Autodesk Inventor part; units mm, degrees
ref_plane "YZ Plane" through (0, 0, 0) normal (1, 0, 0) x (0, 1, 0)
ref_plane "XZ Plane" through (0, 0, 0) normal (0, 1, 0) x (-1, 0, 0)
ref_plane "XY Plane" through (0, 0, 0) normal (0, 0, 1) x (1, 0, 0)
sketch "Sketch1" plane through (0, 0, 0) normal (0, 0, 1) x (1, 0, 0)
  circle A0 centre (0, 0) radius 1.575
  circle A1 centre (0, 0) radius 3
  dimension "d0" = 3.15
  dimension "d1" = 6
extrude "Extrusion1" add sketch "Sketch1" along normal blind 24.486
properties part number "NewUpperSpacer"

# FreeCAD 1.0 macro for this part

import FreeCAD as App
import Part
import Sketcher
Q = App.Units.Quantity

doc = App.newDocument("Part")
params = doc.addObject("Spreadsheet::Sheet", "Params")
for row, (alias, value) in enumerate([
    ("sketch1_diameter", "6 mm"),
    ("sketch1_diameter2", "3.15 mm"),
    ("pad1_length", "24.486 mm"),
], start=1):
    params.set(f"A{row}", alias)
    params.set(f"B{row}", "=" + value)
    params.setAlias(f"B{row}", alias)

body = doc.addObject("PartDesign::Body", "Body")

sketch1 = body.newObject("Sketcher::SketchObject", "Sketch")
sketch1.AttachmentSupport = (doc.getObject("XY_Plane"), [""])
sketch1.MapMode = "FlatFace"
sketch1.addGeometry(Part.Circle(App.Vector(0, 0, 0), App.Vector(0, 0, 1), 3), False)
sketch1.addGeometry(Part.Circle(App.Vector(0, 0, 0), App.Vector(0, 0, 1), 1.6), False)
sketch1.addConstraint(Sketcher.Constraint("Coincident", 0, 3, -1, 1))
sketch1.addConstraint(Sketcher.Constraint("Coincident", 1, 3, -1, 1))
sketch1.addConstraint(Sketcher.Constraint("Diameter", 0, Q("6 mm")))
sketch1.addConstraint(Sketcher.Constraint("Diameter", 1, Q("3.15 mm")))
sketch1.setExpression("Constraints[2]", "Params.sketch1_diameter")
sketch1.setExpression("Constraints[3]", "Params.sketch1_diameter2")
pad1 = body.newObject("PartDesign::Pad", "Pad")
pad1.Profile = sketch1
pad1.setExpression("Length", "Params.pad1_length")

doc.recompute()
